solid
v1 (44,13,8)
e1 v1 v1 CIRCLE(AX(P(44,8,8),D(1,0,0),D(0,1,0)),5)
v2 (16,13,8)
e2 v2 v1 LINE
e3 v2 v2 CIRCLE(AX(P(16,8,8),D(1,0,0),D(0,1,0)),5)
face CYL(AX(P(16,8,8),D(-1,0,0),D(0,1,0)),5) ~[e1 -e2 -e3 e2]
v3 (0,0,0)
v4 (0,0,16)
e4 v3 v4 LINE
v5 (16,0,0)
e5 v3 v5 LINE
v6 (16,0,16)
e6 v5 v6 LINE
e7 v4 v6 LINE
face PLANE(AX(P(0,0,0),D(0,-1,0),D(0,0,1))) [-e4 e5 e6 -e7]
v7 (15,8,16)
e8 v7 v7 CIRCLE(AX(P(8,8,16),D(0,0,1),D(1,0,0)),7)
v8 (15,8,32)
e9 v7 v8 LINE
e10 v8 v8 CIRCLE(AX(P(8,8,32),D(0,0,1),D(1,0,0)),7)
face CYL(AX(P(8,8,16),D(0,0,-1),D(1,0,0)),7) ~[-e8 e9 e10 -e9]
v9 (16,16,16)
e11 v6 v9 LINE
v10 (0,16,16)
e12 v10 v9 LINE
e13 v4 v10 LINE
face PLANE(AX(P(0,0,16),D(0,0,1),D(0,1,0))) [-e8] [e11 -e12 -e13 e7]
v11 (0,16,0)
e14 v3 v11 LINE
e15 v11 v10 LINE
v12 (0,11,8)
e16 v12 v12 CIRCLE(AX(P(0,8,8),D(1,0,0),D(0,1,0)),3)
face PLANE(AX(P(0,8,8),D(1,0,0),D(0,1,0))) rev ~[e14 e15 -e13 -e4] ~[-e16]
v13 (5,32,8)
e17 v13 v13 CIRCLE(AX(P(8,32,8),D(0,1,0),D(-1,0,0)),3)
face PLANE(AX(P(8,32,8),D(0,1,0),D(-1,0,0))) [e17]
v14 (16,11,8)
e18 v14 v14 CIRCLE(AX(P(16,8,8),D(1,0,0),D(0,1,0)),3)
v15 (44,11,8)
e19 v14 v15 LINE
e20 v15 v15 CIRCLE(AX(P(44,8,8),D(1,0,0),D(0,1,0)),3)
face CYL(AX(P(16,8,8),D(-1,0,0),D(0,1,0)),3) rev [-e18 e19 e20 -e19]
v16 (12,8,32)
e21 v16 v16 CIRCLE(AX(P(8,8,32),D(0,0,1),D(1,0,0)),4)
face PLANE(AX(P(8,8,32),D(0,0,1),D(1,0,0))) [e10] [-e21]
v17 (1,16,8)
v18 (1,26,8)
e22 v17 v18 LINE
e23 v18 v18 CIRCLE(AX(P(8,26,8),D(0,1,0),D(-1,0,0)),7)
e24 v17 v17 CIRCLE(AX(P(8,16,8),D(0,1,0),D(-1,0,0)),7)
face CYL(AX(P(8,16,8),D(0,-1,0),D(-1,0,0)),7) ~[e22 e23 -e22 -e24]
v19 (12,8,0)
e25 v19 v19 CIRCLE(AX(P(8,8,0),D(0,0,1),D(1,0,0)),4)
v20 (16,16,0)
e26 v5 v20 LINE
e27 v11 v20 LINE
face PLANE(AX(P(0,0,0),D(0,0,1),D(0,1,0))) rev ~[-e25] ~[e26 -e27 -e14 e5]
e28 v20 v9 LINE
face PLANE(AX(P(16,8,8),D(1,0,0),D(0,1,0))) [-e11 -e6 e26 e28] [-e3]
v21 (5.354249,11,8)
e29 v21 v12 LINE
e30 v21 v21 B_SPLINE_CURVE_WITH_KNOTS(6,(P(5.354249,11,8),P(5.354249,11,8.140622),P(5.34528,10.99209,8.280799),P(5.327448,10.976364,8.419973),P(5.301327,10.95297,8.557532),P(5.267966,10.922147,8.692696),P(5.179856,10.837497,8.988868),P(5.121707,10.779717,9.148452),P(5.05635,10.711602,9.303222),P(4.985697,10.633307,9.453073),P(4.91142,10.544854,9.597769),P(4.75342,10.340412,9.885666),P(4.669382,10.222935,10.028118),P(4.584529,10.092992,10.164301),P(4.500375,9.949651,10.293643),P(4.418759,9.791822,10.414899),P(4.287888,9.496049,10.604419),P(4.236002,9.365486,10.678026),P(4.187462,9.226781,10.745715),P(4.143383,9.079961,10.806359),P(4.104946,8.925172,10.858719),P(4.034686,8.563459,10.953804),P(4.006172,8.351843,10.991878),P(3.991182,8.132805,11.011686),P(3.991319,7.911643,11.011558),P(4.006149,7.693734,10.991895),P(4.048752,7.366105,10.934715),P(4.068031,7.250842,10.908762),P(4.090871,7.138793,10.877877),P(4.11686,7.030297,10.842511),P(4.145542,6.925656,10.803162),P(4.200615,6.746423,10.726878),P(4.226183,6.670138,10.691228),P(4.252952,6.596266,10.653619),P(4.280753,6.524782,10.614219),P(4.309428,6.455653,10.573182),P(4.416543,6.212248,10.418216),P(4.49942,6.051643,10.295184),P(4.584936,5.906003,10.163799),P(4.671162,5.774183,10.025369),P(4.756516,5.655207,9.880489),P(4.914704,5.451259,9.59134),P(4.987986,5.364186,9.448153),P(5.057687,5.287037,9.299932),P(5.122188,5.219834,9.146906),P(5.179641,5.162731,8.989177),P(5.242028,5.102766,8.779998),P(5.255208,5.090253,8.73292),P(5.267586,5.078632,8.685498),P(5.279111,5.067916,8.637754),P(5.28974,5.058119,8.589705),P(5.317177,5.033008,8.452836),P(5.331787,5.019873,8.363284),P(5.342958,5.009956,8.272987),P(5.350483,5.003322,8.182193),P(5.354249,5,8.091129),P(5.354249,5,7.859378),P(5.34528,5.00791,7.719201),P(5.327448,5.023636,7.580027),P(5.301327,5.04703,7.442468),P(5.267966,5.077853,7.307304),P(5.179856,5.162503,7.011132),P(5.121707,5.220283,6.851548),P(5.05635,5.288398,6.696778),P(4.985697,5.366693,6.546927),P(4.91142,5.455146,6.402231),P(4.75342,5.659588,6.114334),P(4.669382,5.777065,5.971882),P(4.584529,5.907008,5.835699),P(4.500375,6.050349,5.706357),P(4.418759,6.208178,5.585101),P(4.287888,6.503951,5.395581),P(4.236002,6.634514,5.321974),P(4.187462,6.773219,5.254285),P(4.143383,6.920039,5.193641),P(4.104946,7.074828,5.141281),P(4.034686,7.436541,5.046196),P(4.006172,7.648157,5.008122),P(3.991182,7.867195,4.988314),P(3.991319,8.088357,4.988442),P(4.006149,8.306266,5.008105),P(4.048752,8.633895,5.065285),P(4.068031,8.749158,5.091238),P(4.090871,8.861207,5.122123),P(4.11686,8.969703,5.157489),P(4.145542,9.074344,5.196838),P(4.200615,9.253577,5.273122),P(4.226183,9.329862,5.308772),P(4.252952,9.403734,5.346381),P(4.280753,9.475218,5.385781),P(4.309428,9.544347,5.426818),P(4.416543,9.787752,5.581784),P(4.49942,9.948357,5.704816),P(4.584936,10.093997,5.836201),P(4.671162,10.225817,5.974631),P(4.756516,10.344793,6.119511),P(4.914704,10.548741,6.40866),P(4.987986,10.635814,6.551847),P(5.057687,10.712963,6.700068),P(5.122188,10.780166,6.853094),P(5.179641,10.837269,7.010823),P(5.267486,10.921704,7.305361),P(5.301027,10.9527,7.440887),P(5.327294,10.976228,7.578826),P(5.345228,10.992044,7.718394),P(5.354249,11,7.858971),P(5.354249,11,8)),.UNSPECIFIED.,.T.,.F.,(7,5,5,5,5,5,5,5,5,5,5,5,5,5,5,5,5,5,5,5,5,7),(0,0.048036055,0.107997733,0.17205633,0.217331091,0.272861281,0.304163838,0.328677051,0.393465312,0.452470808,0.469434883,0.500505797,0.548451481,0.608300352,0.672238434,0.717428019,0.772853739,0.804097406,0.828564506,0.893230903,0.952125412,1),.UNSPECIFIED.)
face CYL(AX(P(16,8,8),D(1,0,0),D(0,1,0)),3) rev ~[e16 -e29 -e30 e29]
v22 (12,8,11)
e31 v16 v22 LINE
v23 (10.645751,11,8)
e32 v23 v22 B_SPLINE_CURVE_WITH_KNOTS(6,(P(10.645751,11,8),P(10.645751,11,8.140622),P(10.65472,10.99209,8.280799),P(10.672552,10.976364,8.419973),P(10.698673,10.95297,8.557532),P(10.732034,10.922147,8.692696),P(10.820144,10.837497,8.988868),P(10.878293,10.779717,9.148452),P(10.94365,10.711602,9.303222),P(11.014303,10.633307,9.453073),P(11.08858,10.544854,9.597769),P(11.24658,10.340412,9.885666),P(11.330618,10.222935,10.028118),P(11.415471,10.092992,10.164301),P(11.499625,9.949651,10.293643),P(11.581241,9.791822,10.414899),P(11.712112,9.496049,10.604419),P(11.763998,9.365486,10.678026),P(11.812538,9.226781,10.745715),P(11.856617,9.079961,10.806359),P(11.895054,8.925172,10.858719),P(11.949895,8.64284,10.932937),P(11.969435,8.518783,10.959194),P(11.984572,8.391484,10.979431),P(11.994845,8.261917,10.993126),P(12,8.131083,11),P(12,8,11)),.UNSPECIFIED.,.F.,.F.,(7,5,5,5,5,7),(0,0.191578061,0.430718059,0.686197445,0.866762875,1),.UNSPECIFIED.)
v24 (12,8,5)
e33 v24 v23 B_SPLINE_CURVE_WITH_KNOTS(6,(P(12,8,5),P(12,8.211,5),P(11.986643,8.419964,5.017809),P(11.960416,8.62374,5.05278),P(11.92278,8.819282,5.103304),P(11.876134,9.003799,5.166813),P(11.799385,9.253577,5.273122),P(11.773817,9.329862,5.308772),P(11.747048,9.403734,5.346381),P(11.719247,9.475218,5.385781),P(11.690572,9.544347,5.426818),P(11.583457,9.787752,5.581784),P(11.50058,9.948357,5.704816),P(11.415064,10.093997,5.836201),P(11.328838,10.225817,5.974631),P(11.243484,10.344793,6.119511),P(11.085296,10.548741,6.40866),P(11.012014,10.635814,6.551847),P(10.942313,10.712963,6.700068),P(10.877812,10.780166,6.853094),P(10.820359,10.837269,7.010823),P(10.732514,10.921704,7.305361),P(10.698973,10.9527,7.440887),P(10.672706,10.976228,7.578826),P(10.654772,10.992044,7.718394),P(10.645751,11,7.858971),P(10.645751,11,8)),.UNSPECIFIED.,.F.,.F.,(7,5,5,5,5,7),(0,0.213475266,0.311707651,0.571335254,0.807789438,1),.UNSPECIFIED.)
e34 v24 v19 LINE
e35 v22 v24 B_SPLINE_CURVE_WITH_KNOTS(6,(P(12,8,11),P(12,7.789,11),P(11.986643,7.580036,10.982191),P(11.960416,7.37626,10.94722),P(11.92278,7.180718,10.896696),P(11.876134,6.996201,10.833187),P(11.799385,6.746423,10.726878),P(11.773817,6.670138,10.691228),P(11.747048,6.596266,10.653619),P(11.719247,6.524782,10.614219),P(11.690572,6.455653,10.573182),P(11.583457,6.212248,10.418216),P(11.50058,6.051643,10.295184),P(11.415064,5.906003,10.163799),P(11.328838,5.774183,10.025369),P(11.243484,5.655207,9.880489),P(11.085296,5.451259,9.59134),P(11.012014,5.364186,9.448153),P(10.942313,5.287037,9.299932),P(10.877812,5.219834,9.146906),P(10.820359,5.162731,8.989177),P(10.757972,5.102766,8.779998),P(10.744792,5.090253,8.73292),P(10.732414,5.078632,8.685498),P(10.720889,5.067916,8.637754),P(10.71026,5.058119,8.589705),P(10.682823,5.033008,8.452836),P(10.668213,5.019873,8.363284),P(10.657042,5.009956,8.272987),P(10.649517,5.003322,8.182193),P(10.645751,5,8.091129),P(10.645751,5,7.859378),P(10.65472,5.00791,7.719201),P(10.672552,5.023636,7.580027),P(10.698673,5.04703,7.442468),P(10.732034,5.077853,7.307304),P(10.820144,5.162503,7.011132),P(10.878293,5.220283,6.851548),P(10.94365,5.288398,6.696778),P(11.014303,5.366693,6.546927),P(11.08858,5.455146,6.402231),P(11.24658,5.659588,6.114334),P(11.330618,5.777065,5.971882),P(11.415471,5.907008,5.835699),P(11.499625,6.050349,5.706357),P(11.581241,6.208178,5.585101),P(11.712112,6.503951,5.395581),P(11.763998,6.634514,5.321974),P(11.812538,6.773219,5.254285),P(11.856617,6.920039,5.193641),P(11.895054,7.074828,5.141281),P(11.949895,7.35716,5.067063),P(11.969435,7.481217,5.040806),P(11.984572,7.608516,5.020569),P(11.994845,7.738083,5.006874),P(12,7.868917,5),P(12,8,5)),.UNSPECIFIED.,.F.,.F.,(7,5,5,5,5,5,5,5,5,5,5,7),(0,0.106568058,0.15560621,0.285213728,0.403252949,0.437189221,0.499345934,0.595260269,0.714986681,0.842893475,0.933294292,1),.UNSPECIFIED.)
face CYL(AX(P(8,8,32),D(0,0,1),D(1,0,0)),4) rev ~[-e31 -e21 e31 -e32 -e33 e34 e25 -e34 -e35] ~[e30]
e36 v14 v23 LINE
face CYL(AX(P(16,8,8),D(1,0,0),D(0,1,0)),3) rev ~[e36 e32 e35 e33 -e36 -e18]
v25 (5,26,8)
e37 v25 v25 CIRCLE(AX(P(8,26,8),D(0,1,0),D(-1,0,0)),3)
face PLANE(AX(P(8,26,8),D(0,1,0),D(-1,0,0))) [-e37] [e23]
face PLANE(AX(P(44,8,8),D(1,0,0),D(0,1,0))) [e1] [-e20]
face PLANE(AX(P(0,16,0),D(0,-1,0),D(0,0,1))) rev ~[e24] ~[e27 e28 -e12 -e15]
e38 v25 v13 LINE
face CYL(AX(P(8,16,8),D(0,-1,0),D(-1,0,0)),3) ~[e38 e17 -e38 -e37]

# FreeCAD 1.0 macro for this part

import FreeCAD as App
import Part
import Sketcher
from FreeCAD import Vector
Q = App.Units.Quantity


def add_polygon(sketch, points):
    """Adds a closed chain of lines whose ends are joined by coincident constraints."""
    first, n = sketch.GeometryCount, len(points)
    for a, b in zip(points, points[1:] + points[:1]):
        sketch.addGeometry(Part.LineSegment(App.Vector(*a, 0), App.Vector(*b, 0)), False)
    for i in range(n):
        sketch.addConstraint(Sketcher.Constraint("Coincident", first + i, 2, first + (i + 1) % n, 1))

doc = App.newDocument("Part")
body = doc.addObject("PartDesign::Body", "Body")

sketch1 = body.newObject("Sketcher::SketchObject", "Sketch")
sketch1.AttachmentSupport = (doc.getObject("YZ_Plane"), [""])
sketch1.MapMode = "FlatFace"
add_polygon(sketch1, [(0, 16), (0, 0), (16, 0), (16, 16)])
sketch1.addConstraint([
    Sketcher.Constraint("Vertical", 0),
    Sketcher.Constraint("Horizontal", 1),
    Sketcher.Constraint("Vertical", 2),
    Sketcher.Constraint("Horizontal", 3),
    Sketcher.Constraint("Coincident", 0, 2, -1, 1),
    Sketcher.Constraint("Equal", 3, 0),
    Sketcher.Constraint("DistanceX", 1, 1, 1, 2, Q("16 mm")),
])
pad1 = body.newObject("PartDesign::Pad", "Pad")
pad1.Profile = sketch1
pad1.Length = 16

sketch2 = body.newObject("Sketcher::SketchObject", "Sketch001")
sketch2.AttachmentSupport = (doc.getObject("XY_Plane"), [""])
sketch2.MapMode = "FlatFace"
sketch2.AttachmentOffset = App.Placement(Vector(0, 0, 16), App.Rotation())
sketch2.addGeometry(Part.Circle(Vector(8, 8, 0), Vector(0, 0, 1), 7), False)
sketch2.addConstraint([
    Sketcher.Constraint("Diameter", 0, Q("14 mm")),
    Sketcher.Constraint("DistanceX", -1, 1, 0, 3, Q("8 mm")),
    Sketcher.Constraint("DistanceY", -1, 1, 0, 3, Q("8 mm")),
])
pad2 = body.newObject("PartDesign::Pad", "Pad001")
pad2.Profile = sketch2
pad2.Length = 16

sketch3 = body.newObject("Sketcher::SketchObject", "Sketch002")
sketch3.AttachmentSupport = (doc.getObject("XY_Plane"), [""])
sketch3.MapMode = "FlatFace"
sketch3.AttachmentOffset = App.Placement(Vector(0, 0, 32), App.Rotation())
sketch3.addGeometry(Part.Circle(Vector(8, 8, 0), Vector(0, 0, 1), 4), False)
sketch3.addConstraint([
    Sketcher.Constraint("Diameter", 0, Q("8 mm")),
    Sketcher.Constraint("DistanceX", -1, 1, 0, 3, Q("8 mm")),
    Sketcher.Constraint("DistanceY", -1, 1, 0, 3, Q("8 mm")),
])
pocket1 = body.newObject("PartDesign::Pocket", "Pocket")
pocket1.Profile = sketch3
pocket1.Length = 34

sketch4 = body.newObject("Sketcher::SketchObject", "Sketch003")
sketch4.AttachmentSupport = (doc.getObject("YZ_Plane"), [""])
sketch4.MapMode = "FlatFace"
sketch4.AttachmentOffset = App.Placement(Vector(0, 0, 16), App.Rotation())
sketch4.addGeometry(Part.Circle(Vector(8, 8, 0), Vector(0, 0, 1), 3), False)
sketch4.addConstraint([
    Sketcher.Constraint("Diameter", 0, Q("6 mm")),
    Sketcher.Constraint("DistanceX", -1, 1, 0, 3, Q("8 mm")),
    Sketcher.Constraint("DistanceY", -1, 1, 0, 3, Q("8 mm")),
])
pocket2 = body.newObject("PartDesign::Pocket", "Pocket001")
pocket2.Profile = sketch4
pocket2.Length = 18

sketch5 = body.newObject("Sketcher::SketchObject", "Sketch004")
sketch5.AttachmentSupport = (doc.getObject("YZ_Plane"), [""])
sketch5.MapMode = "FlatFace"
sketch5.AttachmentOffset = App.Placement(Vector(0, 0, 16), App.Rotation())
sketch5.addGeometry([
    Part.Circle(Vector(8, 8, 0), Vector(0, 0, 1), 5),
    Part.Circle(Vector(8, 8, 0), Vector(0, 0, 1), 3),
], False)
sketch5.addConstraint([
    Sketcher.Constraint("Coincident", 1, 3, 0, 3),
    Sketcher.Constraint("Diameter", 0, Q("10 mm")),
    Sketcher.Constraint("Diameter", 1, Q("6 mm")),
    Sketcher.Constraint("DistanceX", -1, 1, 0, 3, Q("8 mm")),
    Sketcher.Constraint("DistanceY", -1, 1, 0, 3, Q("8 mm")),
])
pad3 = body.newObject("PartDesign::Pad", "Pad002")
pad3.Profile = sketch5
pad3.Length = 28

sketch6 = body.newObject("Sketcher::SketchObject", "Sketch005")
sketch6.AttachmentSupport = (doc.getObject("XZ_Plane"), [""])
sketch6.MapMode = "FlatFace"
sketch6.AttachmentOffset = App.Placement(Vector(0, 0, -16), App.Rotation())
sketch6.addGeometry(Part.Circle(Vector(8, 8, 0), Vector(0, 0, 1), 3), False)
sketch6.addConstraint([
    Sketcher.Constraint("Diameter", 0, Q("6 mm")),
    Sketcher.Constraint("DistanceX", -1, 1, 0, 3, Q("8 mm")),
    Sketcher.Constraint("DistanceY", -1, 1, 0, 3, Q("8 mm")),
])
pad4 = body.newObject("PartDesign::Pad", "Pad003")
pad4.Profile = sketch6
pad4.Length = 16
pad4.Reversed = True

sketch7 = body.newObject("Sketcher::SketchObject", "Sketch006")
sketch7.AttachmentSupport = (doc.getObject("XZ_Plane"), [""])
sketch7.MapMode = "FlatFace"
sketch7.AttachmentOffset = App.Placement(Vector(0, 0, -16), App.Rotation())
sketch7.addGeometry([
    Part.Circle(Vector(8, 8, 0), Vector(0, 0, 1), 7),
    Part.Circle(Vector(8, 8, 0), Vector(0, 0, 1), 3),
], False)
sketch7.addConstraint([
    Sketcher.Constraint("Coincident", 1, 3, 0, 3),
    Sketcher.Constraint("Diameter", 0, Q("14 mm")),
    Sketcher.Constraint("Diameter", 1, Q("6 mm")),
    Sketcher.Constraint("DistanceX", -1, 1, 0, 3, Q("8 mm")),
    Sketcher.Constraint("DistanceY", -1, 1, 0, 3, Q("8 mm")),
])
pad5 = body.newObject("PartDesign::Pad", "Pad004")
pad5.Profile = sketch7
pad5.Length = 10
pad5.Reversed = True

doc.recompute()
